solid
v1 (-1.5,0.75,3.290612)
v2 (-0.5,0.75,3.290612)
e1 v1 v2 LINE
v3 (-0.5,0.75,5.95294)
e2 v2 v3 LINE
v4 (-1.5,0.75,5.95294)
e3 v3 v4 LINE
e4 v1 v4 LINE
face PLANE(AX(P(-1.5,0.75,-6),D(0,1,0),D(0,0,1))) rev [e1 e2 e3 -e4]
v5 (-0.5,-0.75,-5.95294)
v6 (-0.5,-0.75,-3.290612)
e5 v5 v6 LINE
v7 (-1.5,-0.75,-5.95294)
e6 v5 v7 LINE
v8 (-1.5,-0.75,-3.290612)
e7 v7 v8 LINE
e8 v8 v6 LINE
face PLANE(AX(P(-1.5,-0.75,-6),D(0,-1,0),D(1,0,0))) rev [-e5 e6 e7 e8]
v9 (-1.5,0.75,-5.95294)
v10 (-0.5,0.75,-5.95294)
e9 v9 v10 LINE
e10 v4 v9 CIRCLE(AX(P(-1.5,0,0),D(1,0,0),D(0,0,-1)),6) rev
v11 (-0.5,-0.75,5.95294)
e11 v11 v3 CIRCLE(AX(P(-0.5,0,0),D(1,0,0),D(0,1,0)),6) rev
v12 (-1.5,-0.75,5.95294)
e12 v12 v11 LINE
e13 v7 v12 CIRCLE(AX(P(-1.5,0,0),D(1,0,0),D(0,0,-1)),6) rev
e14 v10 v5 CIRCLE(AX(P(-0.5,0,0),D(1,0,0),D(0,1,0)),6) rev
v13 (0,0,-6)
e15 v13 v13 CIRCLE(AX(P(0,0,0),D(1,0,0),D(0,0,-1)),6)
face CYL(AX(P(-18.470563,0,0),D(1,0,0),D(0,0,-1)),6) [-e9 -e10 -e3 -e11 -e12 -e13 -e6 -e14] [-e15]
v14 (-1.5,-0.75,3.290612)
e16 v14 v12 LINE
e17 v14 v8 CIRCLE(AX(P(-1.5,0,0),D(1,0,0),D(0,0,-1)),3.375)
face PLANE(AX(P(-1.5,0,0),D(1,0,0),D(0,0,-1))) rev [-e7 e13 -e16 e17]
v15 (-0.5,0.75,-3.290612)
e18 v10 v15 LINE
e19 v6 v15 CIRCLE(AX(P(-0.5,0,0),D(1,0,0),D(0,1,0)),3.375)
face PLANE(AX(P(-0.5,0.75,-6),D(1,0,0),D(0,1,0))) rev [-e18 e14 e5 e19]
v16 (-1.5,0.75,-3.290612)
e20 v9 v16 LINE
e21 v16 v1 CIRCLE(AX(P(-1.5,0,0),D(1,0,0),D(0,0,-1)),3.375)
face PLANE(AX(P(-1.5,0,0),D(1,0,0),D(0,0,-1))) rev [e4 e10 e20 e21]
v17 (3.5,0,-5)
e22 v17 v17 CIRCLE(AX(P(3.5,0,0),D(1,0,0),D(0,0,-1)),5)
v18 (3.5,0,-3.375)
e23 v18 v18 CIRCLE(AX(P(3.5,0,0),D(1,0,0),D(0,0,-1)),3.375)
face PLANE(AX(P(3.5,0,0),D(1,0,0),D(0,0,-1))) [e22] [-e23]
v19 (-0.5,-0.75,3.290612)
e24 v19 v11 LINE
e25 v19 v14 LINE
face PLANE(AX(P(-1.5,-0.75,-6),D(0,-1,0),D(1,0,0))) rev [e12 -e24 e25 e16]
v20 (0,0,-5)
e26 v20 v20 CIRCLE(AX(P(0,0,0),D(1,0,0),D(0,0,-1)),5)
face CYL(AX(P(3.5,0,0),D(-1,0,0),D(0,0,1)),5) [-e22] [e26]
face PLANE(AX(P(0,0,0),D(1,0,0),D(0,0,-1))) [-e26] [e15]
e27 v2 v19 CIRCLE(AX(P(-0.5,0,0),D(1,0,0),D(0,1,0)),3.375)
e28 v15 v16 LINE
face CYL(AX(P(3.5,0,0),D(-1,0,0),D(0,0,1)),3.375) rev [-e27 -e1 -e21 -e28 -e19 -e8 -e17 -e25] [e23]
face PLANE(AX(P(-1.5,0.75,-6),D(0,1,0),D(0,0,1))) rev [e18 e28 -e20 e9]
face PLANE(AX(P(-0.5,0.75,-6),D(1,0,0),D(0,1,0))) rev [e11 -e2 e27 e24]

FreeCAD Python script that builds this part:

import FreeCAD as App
import Part
import Sketcher
Q = App.Units.Quantity


def add_polygon(sketch, points):
    """Adds a closed chain of lines whose ends are joined by coincident constraints."""
    first, n = sketch.GeometryCount, len(points)
    for a, b in zip(points, points[1:] + points[:1]):
        sketch.addGeometry(Part.LineSegment(App.Vector(*a, 0), App.Vector(*b, 0)), False)
    for i in range(n):
        sketch.addConstraint(Sketcher.Constraint("Coincident", first + i, 2, first + (i + 1) % n, 1))

doc = App.newDocument("Part")
body = doc.addObject("PartDesign::Body", "Body")

sketch1 = doc.addObject("Sketcher::SketchObject", "Sketch")
body.addObject(sketch1)
sketch1.AttachmentSupport = (doc.YZ_Plane, [""])
sketch1.MapMode = "FlatFace"
sketch1.addGeometry([
    Part.Circle(App.Vector(0, 0, 0), App.Vector(0, 0, 1), 5),
    Part.Circle(App.Vector(0, 0, 0), App.Vector(0, 0, 1), 3.4),
], False)
sketch1.addConstraint([
    Sketcher.Constraint("Coincident", 0, 3, -1, 1),
    Sketcher.Constraint("Coincident", 1, 3, -1, 1),
    Sketcher.Constraint("Diameter", 0, Q("10 mm")),
    Sketcher.Constraint("Diameter", 1, Q("6.75 mm")),
])
pad1 = doc.addObject("PartDesign::Pad", "Pad")
body.addObject(pad1)
pad1.Profile = sketch1
pad1.Type = "TwoLengths"
pad1.Length = 3.5
pad1.Length2 = 1.5

sketch2 = doc.addObject("Sketcher::SketchObject", "Sketch001")
body.addObject(sketch2)
sketch2.AttachmentSupport = (doc.YZ_Plane, [""])
sketch2.MapMode = "FlatFace"
sketch2.addGeometry([
    Part.Circle(App.Vector(0, 0, 0), App.Vector(0, 0, 1), 6),
    Part.Circle(App.Vector(0, 0, 0), App.Vector(0, 0, 1), 3.4),
], False)
sketch2.addConstraint([
    Sketcher.Constraint("Coincident", 0, 3, -1, 1),
    Sketcher.Constraint("Coincident", 1, 3, -1, 1),
    Sketcher.Constraint("Diameter", 0, Q("12 mm")),
    Sketcher.Constraint("Diameter", 1, Q("6.75 mm")),
])
pad2 = doc.addObject("PartDesign::Pad", "Pad001")
body.addObject(pad2)
pad2.Profile = sketch2
pad2.Length = 1.5
pad2.Reversed = True

sketch3 = doc.addObject("Sketcher::SketchObject", "Sketch002")
body.addObject(sketch3)
sketch3.AttachmentSupport = (doc.XY_Plane, [""])
sketch3.MapMode = "FlatFace"
add_polygon(sketch3, [(-1.5, 0.8), (-1.5, -0.8), (-0.5, -0.8), (-0.5, 0.8)])
sketch3.addConstraint([
    Sketcher.Constraint("Vertical", 0),
    Sketcher.Constraint("Horizontal", 1),
    Sketcher.Constraint("Vertical", 2),
    Sketcher.Constraint("Horizontal", 3),
    Sketcher.Constraint("DistanceX", 1, 1, 1, 2, Q("1 mm")),
    Sketcher.Constraint("DistanceY", 0, 2, 0, 1, Q("1.5 mm")),
    Sketcher.Constraint("DistanceX", 0, 2, -1, 1, Q("1.5 mm")),
    Sketcher.Constraint("DistanceY", 0, 2, -1, 1, Q("0.75 mm")),
])
pocket1 = doc.addObject("PartDesign::Pocket", "Pocket")
body.addObject(pocket1)
pocket1.Profile = sketch3
pocket1.Type = "ThroughAll"
pocket1.Midplane = True

doc.recompute()
